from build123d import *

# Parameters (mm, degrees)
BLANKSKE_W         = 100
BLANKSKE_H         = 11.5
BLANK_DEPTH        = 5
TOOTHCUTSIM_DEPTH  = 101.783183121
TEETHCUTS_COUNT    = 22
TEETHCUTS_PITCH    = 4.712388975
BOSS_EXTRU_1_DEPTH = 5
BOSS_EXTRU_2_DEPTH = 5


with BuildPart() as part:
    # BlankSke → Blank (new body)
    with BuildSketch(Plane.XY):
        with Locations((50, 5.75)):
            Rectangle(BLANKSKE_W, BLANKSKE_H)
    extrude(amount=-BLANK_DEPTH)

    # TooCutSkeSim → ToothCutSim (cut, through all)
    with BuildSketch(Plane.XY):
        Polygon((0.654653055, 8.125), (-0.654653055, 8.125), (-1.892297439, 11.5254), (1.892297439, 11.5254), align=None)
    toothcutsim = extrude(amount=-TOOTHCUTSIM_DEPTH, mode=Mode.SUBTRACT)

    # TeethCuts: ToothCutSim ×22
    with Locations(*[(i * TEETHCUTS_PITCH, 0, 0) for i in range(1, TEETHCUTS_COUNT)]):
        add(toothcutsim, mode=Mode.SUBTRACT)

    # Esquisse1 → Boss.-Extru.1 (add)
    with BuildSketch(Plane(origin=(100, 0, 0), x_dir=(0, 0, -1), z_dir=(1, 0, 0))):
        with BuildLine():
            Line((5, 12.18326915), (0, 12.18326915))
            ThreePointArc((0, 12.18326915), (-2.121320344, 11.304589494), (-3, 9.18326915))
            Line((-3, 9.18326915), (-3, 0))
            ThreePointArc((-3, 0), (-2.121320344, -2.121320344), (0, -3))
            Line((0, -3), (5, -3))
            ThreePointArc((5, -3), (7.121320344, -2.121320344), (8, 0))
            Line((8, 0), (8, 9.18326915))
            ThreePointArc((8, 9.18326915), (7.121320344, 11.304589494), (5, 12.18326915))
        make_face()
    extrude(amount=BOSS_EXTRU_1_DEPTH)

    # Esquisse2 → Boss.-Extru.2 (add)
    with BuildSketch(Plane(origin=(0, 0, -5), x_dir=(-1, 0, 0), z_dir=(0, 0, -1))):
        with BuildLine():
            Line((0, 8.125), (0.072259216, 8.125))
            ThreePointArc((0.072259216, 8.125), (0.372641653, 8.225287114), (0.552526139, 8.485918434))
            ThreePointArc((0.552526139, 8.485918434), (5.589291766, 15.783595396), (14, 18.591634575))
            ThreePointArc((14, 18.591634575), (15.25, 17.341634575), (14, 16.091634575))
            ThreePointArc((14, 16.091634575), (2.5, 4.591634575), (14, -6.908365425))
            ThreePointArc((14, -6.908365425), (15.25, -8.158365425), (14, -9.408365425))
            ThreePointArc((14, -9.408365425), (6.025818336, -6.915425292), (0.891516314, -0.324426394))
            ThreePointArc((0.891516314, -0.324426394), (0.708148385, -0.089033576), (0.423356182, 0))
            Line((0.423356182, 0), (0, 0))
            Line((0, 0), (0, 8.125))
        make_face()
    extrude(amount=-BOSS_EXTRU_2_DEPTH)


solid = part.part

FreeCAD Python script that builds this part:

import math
import FreeCAD as App
import Part
import Sketcher
Q = App.Units.Quantity

doc = App.newDocument("Part")
params = doc.addObject("Spreadsheet::Sheet", "Params")
for row, (alias, value) in enumerate([
    ("sketch1_width", "100 mm"),
    ("sketch1_height", "11.5 mm"),
    ("pad1_length", "5 mm"),
    ("linearpattern_pitch", "4.712389 mm"),
    ("sketch3_radius", "3 mm"),
    ("sketch3_height", "5 mm"),
    ("pad2_length", "5 mm"),
    ("sketch4_radius", "14 mm"),
    ("sketch4_radius2", "0.5 mm"),
    ("sketch4_radius3", "11.5 mm"),
    ("pad3_length", "5 mm"),
], start=1):
    params.set(f"A{row}", alias)
    params.set(f"B{row}", "=" + value)
    params.setAlias(f"B{row}", alias)

body = doc.addObject("PartDesign::Body", "Body")

sketch1 = body.newObject("Sketcher::SketchObject", "Sketch")
sketch1.AttachmentSupport = (doc.getObject("XY_Plane"), [""])
sketch1.MapMode = "FlatFace"
sketch1.addGeometry(Part.LineSegment(App.Vector(0, 12, 0), App.Vector(0, 0, 0)), False)
sketch1.addGeometry(Part.LineSegment(App.Vector(0, 0, 0), App.Vector(100, 0, 0)), False)
sketch1.addGeometry(Part.LineSegment(App.Vector(100, 0, 0), App.Vector(100, 12, 0)), False)
sketch1.addGeometry(Part.LineSegment(App.Vector(100, 12, 0), App.Vector(0, 12, 0)), False)
sketch1.addConstraint(Sketcher.Constraint("Coincident", 0, 2, 1, 1))
sketch1.addConstraint(Sketcher.Constraint("Coincident", 1, 2, 2, 1))
sketch1.addConstraint(Sketcher.Constraint("Coincident", 2, 2, 3, 1))
sketch1.addConstraint(Sketcher.Constraint("Coincident", 3, 2, 0, 1))
sketch1.addConstraint(Sketcher.Constraint("Vertical", 0))
sketch1.addConstraint(Sketcher.Constraint("Horizontal", 1))
sketch1.addConstraint(Sketcher.Constraint("Vertical", 2))
sketch1.addConstraint(Sketcher.Constraint("Horizontal", 3))
sketch1.addConstraint(Sketcher.Constraint("Coincident", 0, 2, -1, 1))
sketch1.addConstraint(Sketcher.Constraint("DistanceX", 1, 1, 1, 2, 100.0))
sketch1.addConstraint(Sketcher.Constraint("DistanceY", 0, 2, 0, 1, 11.5))
sketch1.setExpression("Constraints[9]", "Params.sketch1_width")
sketch1.setExpression("Constraints[10]", "Params.sketch1_height")
pad1 = body.newObject("PartDesign::Pad", "Pad")
pad1.Profile = sketch1
pad1.setExpression("Length", "Params.pad1_length")
pad1.Reversed = True

sketch2 = body.newObject("Sketcher::SketchObject", "Sketch001")
sketch2.AttachmentSupport = (doc.getObject("XY_Plane"), [""])
sketch2.MapMode = "FlatFace"
sketch2.addGeometry(Part.LineSegment(App.Vector(-0.7, 8.1, 0), App.Vector(0.7, 8.1, 0)), False)
sketch2.addGeometry(Part.LineSegment(App.Vector(0.7, 8.1, 0), App.Vector(1.9, 11.5, 0)), False)
sketch2.addGeometry(Part.LineSegment(App.Vector(1.9, 11.5, 0), App.Vector(-1.9, 11.5, 0)), False)
sketch2.addGeometry(Part.LineSegment(App.Vector(-1.9, 11.5, 0), App.Vector(-0.7, 8.1, 0)), False)
sketch2.addConstraint(Sketcher.Constraint("Coincident", 0, 2, 1, 1))
sketch2.addConstraint(Sketcher.Constraint("Coincident", 1, 2, 2, 1))
sketch2.addConstraint(Sketcher.Constraint("Coincident", 2, 2, 3, 1))
sketch2.addConstraint(Sketcher.Constraint("Coincident", 3, 2, 0, 1))
sketch2.addConstraint(Sketcher.Constraint("Horizontal", 0))
sketch2.addConstraint(Sketcher.Constraint("Horizontal", 2))
sketch2.addConstraint(Sketcher.Constraint("Equal", 1, 3))
sketch2.addConstraint(Sketcher.Constraint("Angle", 1, Q("70 deg")))
sketch2.addConstraint(Sketcher.Constraint("DistanceY", -1, 1, 0, 2, 8.125))
sketch2.addConstraint(Sketcher.Constraint("DistanceY", -1, 1, 1, 2, 11.5254))
sketch2.addConstraint(Sketcher.Constraint("DistanceX", 0, 1, 0, 2, 1.309306))
sketch2.addConstraint(Sketcher.Constraint("DistanceX", -1, 1, 0, 2, 0.654653))
pocket1 = body.newObject("PartDesign::Pocket", "Pocket")
pocket1.Profile = sketch2
pocket1.Type = "ThroughAll"
doc.recompute()

linearpattern = body.newObject("PartDesign::LinearPattern", "LinearPattern")
linearpattern.Originals = [pocket1]
linearpattern.Direction = (doc.getObject("X_Axis"), [""])
linearpattern.Mode = "offset"
linearpattern.setExpression("Offset", "Params.linearpattern_pitch")
linearpattern.Occurrences = 22
body.Tip = linearpattern

sketch3 = body.newObject("Sketcher::SketchObject", "Sketch002")
sketch3.AttachmentSupport = (doc.getObject("YZ_Plane"), [""])
sketch3.MapMode = "FlatFace"
sketch3.AttachmentOffset = App.Placement(App.Vector(0, 0, 100), App.Rotation())
sketch3.addGeometry(Part.LineSegment(App.Vector(12.2, -5, 0), App.Vector(12.2, 0, 0)), False)
sketch3.addGeometry(Part.ArcOfCircle(Part.Circle(App.Vector(9.2, 0, 0), App.Vector(0, 0, 1), 3), math.radians(0), math.radians(90)), False)
sketch3.addGeometry(Part.LineSegment(App.Vector(9.2, 3, 0), App.Vector(0, 3, 0)), False)
sketch3.addGeometry(Part.ArcOfCircle(Part.Circle(App.Vector(0, 0, 0), App.Vector(0, 0, 1), 3), math.radians(90), math.radians(180)), False)
sketch3.addGeometry(Part.LineSegment(App.Vector(-3, 0, 0), App.Vector(-3, -5, 0)), False)
sketch3.addGeometry(Part.ArcOfCircle(Part.Circle(App.Vector(0, -5, 0), App.Vector(0, 0, 1), 3), math.radians(180), math.radians(270)), False)
sketch3.addGeometry(Part.LineSegment(App.Vector(0, -8, 0), App.Vector(9.2, -8, 0)), False)
sketch3.addGeometry(Part.ArcOfCircle(Part.Circle(App.Vector(9.2, -5, 0), App.Vector(0, 0, 1), 3), math.radians(-90), math.radians(0)), False)
sketch3.addConstraint(Sketcher.Constraint("Tangent", 0, 2, 1, 1))
sketch3.addConstraint(Sketcher.Constraint("Tangent", 1, 2, 2, 1))
sketch3.addConstraint(Sketcher.Constraint("Tangent", 2, 2, 3, 1))
sketch3.addConstraint(Sketcher.Constraint("Tangent", 3, 2, 4, 1))
sketch3.addConstraint(Sketcher.Constraint("Tangent", 4, 2, 5, 1))
sketch3.addConstraint(Sketcher.Constraint("Tangent", 5, 2, 6, 1))
sketch3.addConstraint(Sketcher.Constraint("Tangent", 6, 2, 7, 1))
sketch3.addConstraint(Sketcher.Constraint("Tangent", 7, 2, 0, 1))
sketch3.addConstraint(Sketcher.Constraint("Vertical", 0))
sketch3.addConstraint(Sketcher.Constraint("Horizontal", 2))
sketch3.addConstraint(Sketcher.Constraint("Vertical", 4))
sketch3.addConstraint(Sketcher.Constraint("Horizontal", 6))
sketch3.addConstraint(Sketcher.Constraint("Coincident", 3, 3, -1, 1))
sketch3.addConstraint(Sketcher.Constraint("Equal", 1, 3))
sketch3.addConstraint(Sketcher.Constraint("Equal", 3, 5))
sketch3.addConstraint(Sketcher.Constraint("Equal", 5, 7))
sketch3.addConstraint(Sketcher.Constraint("Radius", 1, 3.0))
sketch3.addConstraint(Sketcher.Constraint("DistanceY", 0, 1, 0, 2, 5.0))
sketch3.addConstraint(Sketcher.Constraint("DistanceX", 2, 2, 2, 1, 9.183269))
sketch3.setExpression("Constraints[16]", "Params.sketch3_radius")
sketch3.setExpression("Constraints[17]", "Params.sketch3_height")
pad2 = body.newObject("PartDesign::Pad", "Pad001")
pad2.Profile = sketch3
pad2.setExpression("Length", "Params.pad2_length")

sketch4 = body.newObject("Sketcher::SketchObject", "Sketch003")
sketch4.AttachmentSupport = (doc.getObject("XY_Plane"), [""])
sketch4.MapMode = "FlatFace"
sketch4.AttachmentOffset = App.Placement(App.Vector(0, 0, -5), App.Rotation())
sketch4.addGeometry(Part.LineSegment(App.Vector(-0.07, 8.12, 0), App.Vector(0, 8.12, 0)), False)
sketch4.addGeometry(Part.LineSegment(App.Vector(0, 8.12, 0), App.Vector(0, 0, 0)), False)
sketch4.addGeometry(Part.LineSegment(App.Vector(0, 0, 0), App.Vector(-0.42, 0, 0)), False)
sketch4.addGeometry(Part.ArcOfCircle(Part.Circle(App.Vector(-0.42, -0.5, 0), App.Vector(0, 0, 1), 0.5), math.radians(90), math.radians(159)), False)
sketch4.addGeometry(Part.ArcOfCircle(Part.Circle(App.Vector(-14, 4.59, 0), App.Vector(0, 0, 1), 14), math.radians(-90), math.radians(-21)), False)
sketch4.addGeometry(Part.ArcOfCircle(Part.Circle(App.Vector(-14, -8.16, 0), App.Vector(0, 0, 1), 1.25), math.radians(90), math.radians(270)), False)
sketch4.addGeometry(Part.ArcOfCircle(Part.Circle(App.Vector(-14, 4.59, 0), App.Vector(0, 0, 1), 11.5), math.radians(-90), math.radians(90)), False)
sketch4.addGeometry(Part.ArcOfCircle(Part.Circle(App.Vector(-14, 17.34, 0), App.Vector(0, 0, 1), 1.25), math.radians(90), math.radians(270)), False)
sketch4.addGeometry(Part.ArcOfCircle(Part.Circle(App.Vector(-14, 4.59, 0), App.Vector(0, 0, 1), 14), math.radians(16), math.radians(90)), False)
sketch4.addGeometry(Part.ArcOfCircle(Part.Circle(App.Vector(-0.07, 8.62, 0), App.Vector(0, 0, 1), 0.5), math.radians(-164), math.radians(-90)), False)
sketch4.addConstraint(Sketcher.Constraint("Coincident", 0, 2, 1, 1))
sketch4.addConstraint(Sketcher.Constraint("Coincident", 1, 2, 2, 1))
sketch4.addConstraint(Sketcher.Constraint("Tangent", 2, 2, 3, 1))
sketch4.addConstraint(Sketcher.Constraint("Tangent", 3, 2, 4, 2))
sketch4.addConstraint(Sketcher.Constraint("Tangent", 4, 1, 5, 2))
sketch4.addConstraint(Sketcher.Constraint("Tangent", 5, 1, 6, 1))
sketch4.addConstraint(Sketcher.Constraint("Tangent", 6, 2, 7, 2))
sketch4.addConstraint(Sketcher.Constraint("Tangent", 7, 1, 8, 2))
sketch4.addConstraint(Sketcher.Constraint("Tangent", 8, 1, 9, 1))
sketch4.addConstraint(Sketcher.Constraint("Tangent", 9, 2, 0, 1))
sketch4.addConstraint(Sketcher.Constraint("Horizontal", 0))
sketch4.addConstraint(Sketcher.Constraint("Vertical", 1))
sketch4.addConstraint(Sketcher.Constraint("Horizontal", 2))
sketch4.addConstraint(Sketcher.Constraint("Coincident", 1, 2, -1, 1))
sketch4.addConstraint(Sketcher.Constraint("Coincident", 6, 3, 4, 3))
sketch4.addConstraint(Sketcher.Constraint("Coincident", 8, 3, 4, 3))
sketch4.addConstraint(Sketcher.Constraint("Equal", 5, 7))
sketch4.addConstraint(Sketcher.Constraint("Equal", 3, 9))
sketch4.addConstraint(Sketcher.Constraint("Vertical", 4, 3, 5, 3))
sketch4.addConstraint(Sketcher.Constraint("Vertical", 6, 3, 7, 3))
sketch4.addConstraint(Sketcher.Constraint("Radius", 4, 14.0))
sketch4.addConstraint(Sketcher.Constraint("Radius", 3, 0.5))
sketch4.addConstraint(Sketcher.Constraint("Radius", 6, 11.5))
sketch4.addConstraint(Sketcher.Constraint("DistanceX", 4, 3, -1, 1, 14.0))
sketch4.addConstraint(Sketcher.Constraint("DistanceY", 1, 2, 1, 1, 8.125))
sketch4.addConstraint(Sketcher.Constraint("DistanceX", 0, 1, 0, 2, 0.072259))
sketch4.setExpression("Constraints[20]", "Params.sketch4_radius")
sketch4.setExpression("Constraints[21]", "Params.sketch4_radius2")
sketch4.setExpression("Constraints[22]", "Params.sketch4_radius3")
pad3 = body.newObject("PartDesign::Pad", "Pad002")
pad3.Profile = sketch4
pad3.setExpression("Length", "Params.pad3_length")

doc.recompute()
